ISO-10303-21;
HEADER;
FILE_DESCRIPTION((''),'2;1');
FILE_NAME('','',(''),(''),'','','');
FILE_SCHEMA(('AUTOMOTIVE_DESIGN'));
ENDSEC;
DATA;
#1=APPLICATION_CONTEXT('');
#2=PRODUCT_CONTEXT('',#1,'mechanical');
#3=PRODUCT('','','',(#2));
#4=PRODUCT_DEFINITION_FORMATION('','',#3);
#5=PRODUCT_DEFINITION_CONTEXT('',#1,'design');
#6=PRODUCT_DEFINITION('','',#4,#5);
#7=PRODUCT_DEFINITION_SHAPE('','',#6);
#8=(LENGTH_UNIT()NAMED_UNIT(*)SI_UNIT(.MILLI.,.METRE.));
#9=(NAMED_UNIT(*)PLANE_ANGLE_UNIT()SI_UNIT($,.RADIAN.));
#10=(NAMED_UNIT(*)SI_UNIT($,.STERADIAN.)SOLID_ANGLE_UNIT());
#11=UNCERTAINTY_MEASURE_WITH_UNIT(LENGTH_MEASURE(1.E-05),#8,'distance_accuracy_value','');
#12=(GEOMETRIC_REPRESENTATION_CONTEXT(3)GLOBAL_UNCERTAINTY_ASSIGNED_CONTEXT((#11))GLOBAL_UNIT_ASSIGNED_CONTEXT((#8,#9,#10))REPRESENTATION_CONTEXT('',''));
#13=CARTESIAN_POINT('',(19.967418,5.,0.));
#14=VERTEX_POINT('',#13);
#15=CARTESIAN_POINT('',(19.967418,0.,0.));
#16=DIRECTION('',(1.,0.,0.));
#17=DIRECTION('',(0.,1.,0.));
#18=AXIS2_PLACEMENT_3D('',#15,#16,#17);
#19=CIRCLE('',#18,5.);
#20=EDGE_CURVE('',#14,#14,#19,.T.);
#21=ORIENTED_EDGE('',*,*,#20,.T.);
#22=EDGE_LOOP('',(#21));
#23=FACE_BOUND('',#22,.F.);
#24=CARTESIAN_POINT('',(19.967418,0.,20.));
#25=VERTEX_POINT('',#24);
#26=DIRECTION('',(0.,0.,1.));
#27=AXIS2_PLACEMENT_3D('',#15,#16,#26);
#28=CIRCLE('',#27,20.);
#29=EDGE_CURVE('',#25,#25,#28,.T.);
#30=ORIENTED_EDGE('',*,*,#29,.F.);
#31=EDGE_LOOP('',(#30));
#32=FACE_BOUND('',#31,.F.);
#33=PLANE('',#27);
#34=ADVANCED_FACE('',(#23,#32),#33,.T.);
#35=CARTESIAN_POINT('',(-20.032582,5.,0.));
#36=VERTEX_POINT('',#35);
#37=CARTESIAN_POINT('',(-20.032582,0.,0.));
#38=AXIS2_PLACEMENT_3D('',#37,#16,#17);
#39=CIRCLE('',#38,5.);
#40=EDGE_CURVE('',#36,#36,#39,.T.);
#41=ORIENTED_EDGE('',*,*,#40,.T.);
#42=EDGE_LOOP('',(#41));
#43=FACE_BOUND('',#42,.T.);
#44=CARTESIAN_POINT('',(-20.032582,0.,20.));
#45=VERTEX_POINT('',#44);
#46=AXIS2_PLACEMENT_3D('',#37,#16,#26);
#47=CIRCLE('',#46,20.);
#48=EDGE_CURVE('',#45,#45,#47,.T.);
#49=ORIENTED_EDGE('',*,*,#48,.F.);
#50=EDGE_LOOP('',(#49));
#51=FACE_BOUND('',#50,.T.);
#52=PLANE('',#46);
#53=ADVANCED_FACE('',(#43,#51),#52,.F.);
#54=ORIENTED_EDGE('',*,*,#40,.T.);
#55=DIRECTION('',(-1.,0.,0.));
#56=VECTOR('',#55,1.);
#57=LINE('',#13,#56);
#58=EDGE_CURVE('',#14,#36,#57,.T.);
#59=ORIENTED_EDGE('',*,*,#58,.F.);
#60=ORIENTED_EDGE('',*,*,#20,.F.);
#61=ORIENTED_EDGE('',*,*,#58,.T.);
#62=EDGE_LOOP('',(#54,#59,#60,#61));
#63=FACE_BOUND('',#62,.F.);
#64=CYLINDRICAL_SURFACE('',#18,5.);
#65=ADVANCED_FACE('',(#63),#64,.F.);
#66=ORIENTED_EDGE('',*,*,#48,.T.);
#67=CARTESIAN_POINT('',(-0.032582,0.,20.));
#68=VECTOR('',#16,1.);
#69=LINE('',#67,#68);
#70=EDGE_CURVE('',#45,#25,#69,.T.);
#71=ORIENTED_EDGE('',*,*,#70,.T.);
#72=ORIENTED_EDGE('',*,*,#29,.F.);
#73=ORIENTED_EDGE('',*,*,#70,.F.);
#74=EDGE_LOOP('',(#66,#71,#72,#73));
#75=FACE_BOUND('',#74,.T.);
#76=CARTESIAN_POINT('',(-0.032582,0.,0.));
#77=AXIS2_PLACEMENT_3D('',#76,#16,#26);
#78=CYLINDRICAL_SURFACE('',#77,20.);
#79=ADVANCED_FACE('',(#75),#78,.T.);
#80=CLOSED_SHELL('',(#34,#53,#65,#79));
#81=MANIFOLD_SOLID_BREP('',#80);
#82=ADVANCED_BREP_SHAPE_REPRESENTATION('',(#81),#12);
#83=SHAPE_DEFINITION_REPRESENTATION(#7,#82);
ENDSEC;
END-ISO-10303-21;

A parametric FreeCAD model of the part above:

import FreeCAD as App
import Part
import Sketcher

V = App.Vector
Q = App.Units.Quantity


def add_polygon(sketch, points):
    """Adds a closed chain of lines whose ends are joined by coincident constraints."""
    first, n = sketch.GeometryCount, len(points)
    for a, b in zip(points, points[1:] + points[:1]):
        sketch.addGeometry(Part.LineSegment(App.Vector(*a, 0), App.Vector(*b, 0)), False)
    for i in range(n):
        sketch.addConstraint(Sketcher.Constraint("Coincident", first + i, 2, first + (i + 1) % n, 1))

doc = App.newDocument("Part")
body = doc.addObject("PartDesign::Body", "Body")

# Sketch on XZ plane
sketch1 = body.newObject("Sketcher::SketchObject", "Sketch")
sketch1.AttachmentSupport = (doc.getObject("XZ_Plane"), [""])
sketch1.MapMode = "FlatFace"
add_polygon(sketch1, [(-20, 20), (-20, 0), (20, 0), (20, 20)])  # lines 0-3
sketch1.addConstraint([
    Sketcher.Constraint("Vertical", 0),
    Sketcher.Constraint("Horizontal", 1),
    Sketcher.Constraint("Vertical", 2),
    Sketcher.Constraint("Horizontal", 3),
    Sketcher.Constraint("PointOnObject", 0, 2, -1),
    Sketcher.Constraint("DistanceX", 1, 1, 1, 2, Q("40 mm")),
    Sketcher.Constraint("DistanceY", 0, 2, 0, 1, Q("20 mm")),
    Sketcher.Constraint("DistanceX", 0, 2, -1, 1, Q("20.032582 mm")),
])
revolution = body.newObject("PartDesign::Revolution", "Revolution")
revolution.Profile = sketch1
revolution.ReferenceAxis = (sketch1, ["H_Axis"])
revolution.Angle = 360

# Sketch on YZ plane
sketch2 = body.newObject("Sketcher::SketchObject", "Sketch001")
sketch2.AttachmentSupport = (doc.getObject("YZ_Plane"), [""])
sketch2.MapMode = "FlatFace"
sketch2.AttachmentOffset = App.Placement(V(0, 0, 19.967418), App.Rotation())
sketch2.addGeometry(Part.Circle(V(0, 0, 0), V(0, 0, 1), 5), False)
sketch2.addConstraint([
    Sketcher.Constraint("Coincident", 0, 3, -1, 1),
    Sketcher.Constraint("Diameter", 0, Q("10 mm")),
])
pocket1 = body.newObject("PartDesign::Pocket", "Pocket")
pocket1.Profile = sketch2
pocket1.Type = "ThroughAll"

doc.recompute()
